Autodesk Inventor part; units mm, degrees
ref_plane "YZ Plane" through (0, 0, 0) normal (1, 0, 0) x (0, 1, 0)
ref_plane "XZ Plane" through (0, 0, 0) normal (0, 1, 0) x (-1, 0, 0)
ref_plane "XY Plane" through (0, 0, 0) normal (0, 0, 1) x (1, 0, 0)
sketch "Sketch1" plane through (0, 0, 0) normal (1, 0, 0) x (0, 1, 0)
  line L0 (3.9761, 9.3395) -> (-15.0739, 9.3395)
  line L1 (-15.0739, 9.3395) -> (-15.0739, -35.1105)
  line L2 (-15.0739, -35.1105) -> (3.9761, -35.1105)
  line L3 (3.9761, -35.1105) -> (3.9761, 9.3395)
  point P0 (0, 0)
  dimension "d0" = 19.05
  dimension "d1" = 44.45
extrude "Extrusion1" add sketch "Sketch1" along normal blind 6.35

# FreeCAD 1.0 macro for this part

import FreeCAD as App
import Part
import Sketcher
from FreeCAD import Vector
Q = App.Units.Quantity


def add_polygon(sketch, points):
    """Adds a closed chain of lines whose ends are joined by coincident constraints."""
    first, n = sketch.GeometryCount, len(points)
    for a, b in zip(points, points[1:] + points[:1]):
        sketch.addGeometry(Part.LineSegment(App.Vector(*a, 0), App.Vector(*b, 0)), False)
    for i in range(n):
        sketch.addConstraint(Sketcher.Constraint("Coincident", first + i, 2, first + (i + 1) % n, 1))

doc = App.newDocument("Part")
body = doc.addObject("PartDesign::Body", "Body")

sketch1 = body.newObject("Sketcher::SketchObject", "Sketch")
sketch1.AttachmentSupport = (doc.getObject("YZ_Plane"), [""])
sketch1.MapMode = "FlatFace"
add_polygon(sketch1, [(4, -35), (4, 9), (-15, 9), (-15, -35)])
sketch1.addConstraint([
    Sketcher.Constraint("Vertical", 0),
    Sketcher.Constraint("Horizontal", 1),
    Sketcher.Constraint("Vertical", 2),
    Sketcher.Constraint("Horizontal", 3),
    Sketcher.Constraint("DistanceX", 1, 2, 1, 1, Q("0.75 in")),
    Sketcher.Constraint("DistanceY", 0, 1, 0, 2, Q("1.75 in")),
    Sketcher.Constraint("DistanceY", -1, 1, 0, 2, Q("0.3677 in")),
    Sketcher.Constraint("DistanceX", -1, 1, 0, 2, 3.976),
])
pad1 = body.newObject("PartDesign::Pad", "Pad")
pad1.Profile = sketch1
pad1.Length = Q("0.25 in")

doc.recompute()
